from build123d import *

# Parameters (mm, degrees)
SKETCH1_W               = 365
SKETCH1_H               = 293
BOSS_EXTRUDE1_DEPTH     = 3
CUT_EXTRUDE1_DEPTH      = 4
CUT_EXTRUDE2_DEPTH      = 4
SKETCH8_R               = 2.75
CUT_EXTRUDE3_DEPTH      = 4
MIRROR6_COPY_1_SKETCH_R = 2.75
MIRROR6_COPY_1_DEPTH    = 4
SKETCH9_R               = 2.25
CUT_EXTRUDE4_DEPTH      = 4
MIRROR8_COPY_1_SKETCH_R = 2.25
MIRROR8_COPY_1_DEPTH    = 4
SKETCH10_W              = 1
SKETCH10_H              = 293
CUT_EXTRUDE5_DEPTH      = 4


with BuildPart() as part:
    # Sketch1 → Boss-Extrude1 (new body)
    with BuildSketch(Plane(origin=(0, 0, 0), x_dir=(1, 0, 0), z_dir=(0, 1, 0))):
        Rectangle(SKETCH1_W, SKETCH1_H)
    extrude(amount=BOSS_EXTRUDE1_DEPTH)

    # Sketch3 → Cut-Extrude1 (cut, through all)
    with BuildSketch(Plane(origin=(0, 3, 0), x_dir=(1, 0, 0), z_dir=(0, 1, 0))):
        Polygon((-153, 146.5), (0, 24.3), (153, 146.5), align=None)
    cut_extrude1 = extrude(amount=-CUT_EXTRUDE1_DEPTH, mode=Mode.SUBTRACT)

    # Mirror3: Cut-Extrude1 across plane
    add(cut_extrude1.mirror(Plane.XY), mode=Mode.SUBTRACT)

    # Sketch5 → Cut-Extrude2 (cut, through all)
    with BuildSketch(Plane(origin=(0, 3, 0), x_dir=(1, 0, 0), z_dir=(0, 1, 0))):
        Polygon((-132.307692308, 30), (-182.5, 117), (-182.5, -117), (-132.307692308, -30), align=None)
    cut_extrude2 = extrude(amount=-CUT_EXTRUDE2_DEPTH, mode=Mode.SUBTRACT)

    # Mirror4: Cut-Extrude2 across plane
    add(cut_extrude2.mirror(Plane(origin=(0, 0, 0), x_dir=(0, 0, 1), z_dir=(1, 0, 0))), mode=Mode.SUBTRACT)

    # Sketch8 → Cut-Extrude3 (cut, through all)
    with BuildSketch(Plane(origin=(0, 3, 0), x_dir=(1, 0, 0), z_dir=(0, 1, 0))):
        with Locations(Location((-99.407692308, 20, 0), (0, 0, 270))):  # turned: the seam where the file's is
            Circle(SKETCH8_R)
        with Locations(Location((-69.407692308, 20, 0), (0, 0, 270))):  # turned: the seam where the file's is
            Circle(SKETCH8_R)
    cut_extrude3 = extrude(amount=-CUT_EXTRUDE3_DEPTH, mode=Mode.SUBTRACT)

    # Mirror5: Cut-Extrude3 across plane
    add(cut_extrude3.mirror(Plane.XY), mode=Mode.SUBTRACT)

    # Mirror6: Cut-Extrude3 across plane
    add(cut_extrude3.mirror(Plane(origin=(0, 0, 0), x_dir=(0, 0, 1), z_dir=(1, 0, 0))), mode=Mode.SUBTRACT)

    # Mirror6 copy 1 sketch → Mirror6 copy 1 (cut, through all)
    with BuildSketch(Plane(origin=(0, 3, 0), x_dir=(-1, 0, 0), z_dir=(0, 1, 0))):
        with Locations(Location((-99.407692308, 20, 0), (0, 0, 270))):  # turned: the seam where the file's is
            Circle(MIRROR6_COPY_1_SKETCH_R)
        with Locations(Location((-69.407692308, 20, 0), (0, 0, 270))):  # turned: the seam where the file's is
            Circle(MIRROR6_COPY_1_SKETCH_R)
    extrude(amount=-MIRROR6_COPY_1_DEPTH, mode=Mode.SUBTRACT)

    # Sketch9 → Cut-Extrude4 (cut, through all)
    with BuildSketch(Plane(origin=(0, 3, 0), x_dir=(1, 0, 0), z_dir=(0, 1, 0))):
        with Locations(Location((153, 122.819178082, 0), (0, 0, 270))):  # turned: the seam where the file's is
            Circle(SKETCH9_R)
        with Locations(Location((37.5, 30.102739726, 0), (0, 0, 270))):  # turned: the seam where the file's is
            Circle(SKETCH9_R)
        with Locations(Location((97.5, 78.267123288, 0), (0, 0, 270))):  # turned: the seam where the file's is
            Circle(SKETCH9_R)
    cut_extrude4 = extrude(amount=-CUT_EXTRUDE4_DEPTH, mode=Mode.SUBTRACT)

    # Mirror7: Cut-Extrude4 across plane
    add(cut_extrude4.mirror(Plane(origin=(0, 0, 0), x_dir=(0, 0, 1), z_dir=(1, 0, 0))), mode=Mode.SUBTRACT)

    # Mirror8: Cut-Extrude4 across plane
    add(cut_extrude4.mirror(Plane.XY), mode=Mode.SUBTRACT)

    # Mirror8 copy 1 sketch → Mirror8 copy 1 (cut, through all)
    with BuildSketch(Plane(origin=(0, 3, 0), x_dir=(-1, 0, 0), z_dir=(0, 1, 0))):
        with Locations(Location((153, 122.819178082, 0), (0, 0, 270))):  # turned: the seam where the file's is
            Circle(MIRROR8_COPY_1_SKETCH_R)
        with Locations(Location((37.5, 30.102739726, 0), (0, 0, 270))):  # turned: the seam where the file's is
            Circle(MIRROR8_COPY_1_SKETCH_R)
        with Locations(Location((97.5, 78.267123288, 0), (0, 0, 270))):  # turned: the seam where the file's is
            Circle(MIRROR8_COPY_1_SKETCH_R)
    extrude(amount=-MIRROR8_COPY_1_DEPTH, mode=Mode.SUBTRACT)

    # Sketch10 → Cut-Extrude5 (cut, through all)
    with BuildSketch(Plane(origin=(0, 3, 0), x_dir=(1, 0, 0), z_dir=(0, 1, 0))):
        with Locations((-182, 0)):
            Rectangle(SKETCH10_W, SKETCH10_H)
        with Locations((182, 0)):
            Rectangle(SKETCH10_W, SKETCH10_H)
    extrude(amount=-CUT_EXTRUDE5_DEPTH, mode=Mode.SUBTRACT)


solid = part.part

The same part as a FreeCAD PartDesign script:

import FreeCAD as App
import Part
import Sketcher
from FreeCAD import Vector

doc = App.newDocument("Part")
body = doc.addObject("PartDesign::Body", "Body")

# Sketch on XZ plane
sketch1 = doc.addObject("Sketcher::SketchObject", "Sketch")
body.addObject(sketch1)
sketch1.AttachmentSupport = (doc.XZ_Plane, [""])
sketch1.MapMode = "FlatFace"
sketch1.addGeometry(Part.LineSegment(Vector(-182, -146, 0), Vector(-182, 146, 0)), False)
sketch1.addGeometry(Part.LineSegment(Vector(-182, 146, 0), Vector(182, 146, 0)), False)
sketch1.addGeometry(Part.LineSegment(Vector(182, 146, 0), Vector(182, -146, 0)), False)
sketch1.addGeometry(Part.LineSegment(Vector(182, -146, 0), Vector(-182, -146, 0)), False)
sketch1.addConstraint(Sketcher.Constraint("Coincident", 0, 2, 1, 1))
sketch1.addConstraint(Sketcher.Constraint("Coincident", 1, 2, 2, 1))
sketch1.addConstraint(Sketcher.Constraint("Coincident", 2, 2, 3, 1))
sketch1.addConstraint(Sketcher.Constraint("Coincident", 3, 2, 0, 1))
sketch1.addConstraint(Sketcher.Constraint("Vertical", 0))
sketch1.addConstraint(Sketcher.Constraint("Horizontal", 1))
sketch1.addConstraint(Sketcher.Constraint("Vertical", 2))
sketch1.addConstraint(Sketcher.Constraint("Horizontal", 3))
sketch1.addConstraint(Sketcher.Constraint("Symmetric", 0, 2, 2, 2, -1, 1))
sketch1.addConstraint(Sketcher.Constraint("DistanceX", 1, 1, 1, 2, 365.0))
sketch1.addConstraint(Sketcher.Constraint("DistanceY", 0, 1, 0, 2, 293.0))
pad1 = doc.addObject("PartDesign::Pad", "Pad")
body.addObject(pad1)
pad1.Profile = sketch1
pad1.Length = 3
pad1.Reversed = True

# Sketch on XZ plane
sketch2 = doc.addObject("Sketcher::SketchObject", "Sketch001")
body.addObject(sketch2)
sketch2.AttachmentSupport = (doc.XZ_Plane, [""])
sketch2.MapMode = "FlatFace"
sketch2.AttachmentOffset = App.Placement(Vector(0, 0, -3), App.Rotation())
sketch2.addGeometry(Part.LineSegment(Vector(-153, -146, 0), Vector(0, -24, 0)), False)
sketch2.addGeometry(Part.LineSegment(Vector(0, -24, 0), Vector(153, -146, 0)), False)
sketch2.addGeometry(Part.LineSegment(Vector(153, -146, 0), Vector(-153, -146, 0)), False)
sketch2.addConstraint(Sketcher.Constraint("Coincident", 0, 2, 1, 1))
sketch2.addConstraint(Sketcher.Constraint("Coincident", 1, 2, 2, 1))
sketch2.addConstraint(Sketcher.Constraint("Coincident", 2, 2, 0, 1))
sketch2.addConstraint(Sketcher.Constraint("Horizontal", 2))
sketch2.addConstraint(Sketcher.Constraint("PointOnObject", 0, 2, -2))
sketch2.addConstraint(Sketcher.Constraint("Equal", 0, 1))
sketch2.addConstraint(Sketcher.Constraint("DistanceX", 2, 2, 2, 1, 306.0))
sketch2.addConstraint(Sketcher.Constraint("DistanceY", 0, 2, -1, 1, 24.3))
sketch2.addConstraint(Sketcher.Constraint("DistanceY", 1, 2, -1, 1, 146.5))
pocket1 = doc.addObject("PartDesign::Pocket", "Pocket")
body.addObject(pocket1)
pocket1.Profile = sketch2
pocket1.Type = "ThroughAll"
pocket1.Reversed = True
doc.recompute()

mirrored = doc.addObject("PartDesign::Mirrored", "Mirrored")
body.addObject(mirrored)
mirrored.Originals = [pocket1]
mirrored.MirrorPlane = (doc.XY_Plane, [""])
body.Tip = mirrored

# Sketch on XZ plane
sketch3 = doc.addObject("Sketcher::SketchObject", "Sketch002")
body.addObject(sketch3)
sketch3.AttachmentSupport = (doc.XZ_Plane, [""])
sketch3.MapMode = "FlatFace"
sketch3.AttachmentOffset = App.Placement(Vector(0, 0, -3), App.Rotation())
sketch3.addGeometry(Part.LineSegment(Vector(-132, -30, 0), Vector(-182, -117, 0)), False)
sketch3.addGeometry(Part.LineSegment(Vector(-182, -117, 0), Vector(-182, 117, 0)), False)
sketch3.addGeometry(Part.LineSegment(Vector(-182, 117, 0), Vector(-132, 30, 0)), False)
sketch3.addGeometry(Part.LineSegment(Vector(-132, 30, 0), Vector(-132, -30, 0)), False)
sketch3.addConstraint(Sketcher.Constraint("Coincident", 0, 2, 1, 1))
sketch3.addConstraint(Sketcher.Constraint("Coincident", 1, 2, 2, 1))
sketch3.addConstraint(Sketcher.Constraint("Coincident", 2, 2, 3, 1))
sketch3.addConstraint(Sketcher.Constraint("Coincident", 3, 2, 0, 1))
sketch3.addConstraint(Sketcher.Constraint("Vertical", 1))
sketch3.addConstraint(Sketcher.Constraint("Vertical", 3))
sketch3.addConstraint(Sketcher.Constraint("Equal", 0, 2))
sketch3.addConstraint(Sketcher.Constraint("DistanceY", 1, 1, 1, 2, 234.0))
sketch3.addConstraint(Sketcher.Constraint("DistanceY", 3, 2, 3, 1, 60.0))
sketch3.addConstraint(Sketcher.Constraint("DistanceY", 0, 2, -1, 1, 117.0))
sketch3.addConstraint(Sketcher.Constraint("DistanceX", 0, 2, -1, 1, 182.5))
sketch3.addConstraint(Sketcher.Constraint("Distance", 0, 100.440369))
pocket2 = doc.addObject("PartDesign::Pocket", "Pocket001")
body.addObject(pocket2)
pocket2.Profile = sketch3
pocket2.Type = "ThroughAll"
pocket2.Reversed = True
doc.recompute()

mirrored2 = doc.addObject("PartDesign::Mirrored", "Mirrored001")
body.addObject(mirrored2)
mirrored2.Originals = [pocket2]
mirrored2.MirrorPlane = (doc.YZ_Plane, [""])
body.Tip = mirrored2

# Sketch on XZ plane
sketch4 = doc.addObject("Sketcher::SketchObject", "Sketch003")
body.addObject(sketch4)
sketch4.AttachmentSupport = (doc.XZ_Plane, [""])
sketch4.MapMode = "FlatFace"
sketch4.AttachmentOffset = App.Placement(Vector(0, 0, -3), App.Rotation())
sketch4.addGeometry(Part.Circle(Vector(-99.4, -20, 0), Vector(0, 0, 1), 2.8), False)
sketch4.addGeometry(Part.Circle(Vector(-69.4, -20, 0), Vector(0, 0, 1), 2.8), False)
sketch4.addConstraint(Sketcher.Constraint("Equal", 0, 1))
sketch4.addConstraint(Sketcher.Constraint("Horizontal", 0, 3, 1, 3))
sketch4.addConstraint(Sketcher.Constraint("Diameter", 0, 5.5))
sketch4.addConstraint(Sketcher.Constraint("DistanceY", 0, 3, -1, 1, 20.0))
sketch4.addConstraint(Sketcher.Constraint("DistanceX", 0, 3, 1, 3, 30.0))
sketch4.addConstraint(Sketcher.Constraint("DistanceX", 0, 3, -1, 1, 99.407692))
pocket3 = doc.addObject("PartDesign::Pocket", "Pocket002")
body.addObject(pocket3)
pocket3.Profile = sketch4
pocket3.Type = "ThroughAll"
pocket3.Reversed = True
doc.recompute()

mirrored3 = doc.addObject("PartDesign::Mirrored", "Mirrored002")
body.addObject(mirrored3)
mirrored3.Originals = [pocket3]
mirrored3.MirrorPlane = (doc.XY_Plane, [""])
body.Tip = mirrored3
doc.recompute()

mirrored4 = doc.addObject("PartDesign::Mirrored", "Mirrored003")
body.addObject(mirrored4)
mirrored4.Originals = [pocket3]
mirrored4.MirrorPlane = (doc.YZ_Plane, [""])
body.Tip = mirrored4

# Sketch on XZ plane
sketch5 = doc.addObject("Sketcher::SketchObject", "Sketch004")
body.addObject(sketch5)
sketch5.AttachmentSupport = (doc.XZ_Plane, [""])
sketch5.MapMode = "FlatFace"
sketch5.AttachmentOffset = App.Placement(Vector(0, 0, -3), App.Rotation())
sketch5.addGeometry(Part.Circle(Vector(99.4, 20, 0), Vector(0, 0, 1), 2.8), False)
sketch5.addGeometry(Part.Circle(Vector(69.4, 20, 0), Vector(0, 0, 1), 2.8), False)
sketch5.addConstraint(Sketcher.Constraint("Equal", 0, 1))
sketch5.addConstraint(Sketcher.Constraint("Horizontal", 0, 3, 1, 3))
sketch5.addConstraint(Sketcher.Constraint("Diameter", 0, 5.5))
sketch5.addConstraint(Sketcher.Constraint("DistanceY", -1, 1, 0, 3, 20.0))
sketch5.addConstraint(Sketcher.Constraint("DistanceX", 1, 3, 0, 3, 30.0))
sketch5.addConstraint(Sketcher.Constraint("DistanceX", -1, 1, 0, 3, 99.407692))
pocket4 = doc.addObject("PartDesign::Pocket", "Pocket003")
body.addObject(pocket4)
pocket4.Profile = sketch5
pocket4.Type = "ThroughAll"
pocket4.Reversed = True

# Sketch on XZ plane
sketch6 = doc.addObject("Sketcher::SketchObject", "Sketch005")
body.addObject(sketch6)
sketch6.AttachmentSupport = (doc.XZ_Plane, [""])
sketch6.MapMode = "FlatFace"
sketch6.AttachmentOffset = App.Placement(Vector(0, 0, -3), App.Rotation())
sketch6.addGeometry(Part.Circle(Vector(153, -122.8, 0), Vector(0, 0, 1), 2.2), False)
sketch6.addGeometry(Part.Circle(Vector(37.5, -30.1, 0), Vector(0, 0, 1), 2.2), False)
sketch6.addGeometry(Part.Circle(Vector(97.5, -78.3, 0), Vector(0, 0, 1), 2.2), False)
sketch6.addConstraint(Sketcher.Constraint("Equal", 0, 1))
sketch6.addConstraint(Sketcher.Constraint("Equal", 1, 2))
sketch6.addConstraint(Sketcher.Constraint("Diameter", 0, 4.5))
sketch6.addConstraint(Sketcher.Constraint("DistanceX", -1, 1, 0, 3, 153.0))
sketch6.addConstraint(Sketcher.Constraint("DistanceX", 1, 3, 2, 3, 60.0))
sketch6.addConstraint(Sketcher.Constraint("DistanceX", -1, 1, 1, 3, 37.5))
sketch6.addConstraint(Sketcher.Constraint("DistanceY", 0, 3, -1, 1, 122.819178))
sketch6.addConstraint(Sketcher.Constraint("DistanceY", 1, 3, -1, 1, 30.10274))
sketch6.addConstraint(Sketcher.Constraint("DistanceY", 2, 3, -1, 1, 78.267123))
pocket5 = doc.addObject("PartDesign::Pocket", "Pocket004")
body.addObject(pocket5)
pocket5.Profile = sketch6
pocket5.Type = "ThroughAll"
pocket5.Reversed = True
doc.recompute()

mirrored5 = doc.addObject("PartDesign::Mirrored", "Mirrored004")
body.addObject(mirrored5)
mirrored5.Originals = [pocket5]
mirrored5.MirrorPlane = (doc.YZ_Plane, [""])
body.Tip = mirrored5
doc.recompute()

mirrored6 = doc.addObject("PartDesign::Mirrored", "Mirrored005")
body.addObject(mirrored6)
mirrored6.Originals = [pocket5]
mirrored6.MirrorPlane = (doc.XY_Plane, [""])
body.Tip = mirrored6

# Sketch on XZ plane
sketch7 = doc.addObject("Sketcher::SketchObject", "Sketch006")
body.addObject(sketch7)
sketch7.AttachmentSupport = (doc.XZ_Plane, [""])
sketch7.MapMode = "FlatFace"
sketch7.AttachmentOffset = App.Placement(Vector(0, 0, -3), App.Rotation())
sketch7.addGeometry(Part.Circle(Vector(-153, 122.8, 0), Vector(0, 0, 1), 2.2), False)
sketch7.addGeometry(Part.Circle(Vector(-37.5, 30.1, 0), Vector(0, 0, 1), 2.2), False)
sketch7.addGeometry(Part.Circle(Vector(-97.5, 78.3, 0), Vector(0, 0, 1), 2.2), False)
sketch7.addConstraint(Sketcher.Constraint("Equal", 0, 1))
sketch7.addConstraint(Sketcher.Constraint("Equal", 1, 2))
sketch7.addConstraint(Sketcher.Constraint("Diameter", 0, 4.5))
sketch7.addConstraint(Sketcher.Constraint("DistanceX", 0, 3, -1, 1, 153.0))
sketch7.addConstraint(Sketcher.Constraint("DistanceX", 2, 3, 1, 3, 60.0))
sketch7.addConstraint(Sketcher.Constraint("DistanceX", 1, 3, -1, 1, 37.5))
sketch7.addConstraint(Sketcher.Constraint("DistanceY", -1, 1, 0, 3, 122.819178))
sketch7.addConstraint(Sketcher.Constraint("DistanceY", -1, 1, 1, 3, 30.10274))
sketch7.addConstraint(Sketcher.Constraint("DistanceY", -1, 1, 2, 3, 78.267123))
pocket6 = doc.addObject("PartDesign::Pocket", "Pocket005")
body.addObject(pocket6)
pocket6.Profile = sketch7
pocket6.Type = "ThroughAll"
pocket6.Reversed = True

# Sketch on XZ plane
sketch8 = doc.addObject("Sketcher::SketchObject", "Sketch007")
body.addObject(sketch8)
sketch8.AttachmentSupport = (doc.XZ_Plane, [""])
sketch8.MapMode = "FlatFace"
sketch8.AttachmentOffset = App.Placement(Vector(0, 0, -3), App.Rotation())
sketch8.addGeometry(Part.LineSegment(Vector(-182.5, -146.5, 0), Vector(-182.5, 146.5, 0)), False)
sketch8.addGeometry(Part.LineSegment(Vector(-182.5, 146.5, 0), Vector(-181.5, 146.5, 0)), False)
sketch8.addGeometry(Part.LineSegment(Vector(-181.5, 146.5, 0), Vector(-181.5, -146.5, 0)), False)
sketch8.addGeometry(Part.LineSegment(Vector(-181.5, -146.5, 0), Vector(-182.5, -146.5, 0)), False)
sketch8.addGeometry(Part.LineSegment(Vector(181.5, -146.5, 0), Vector(181.5, 146.5, 0)), False)
sketch8.addGeometry(Part.LineSegment(Vector(181.5, 146.5, 0), Vector(182.5, 146.5, 0)), False)
sketch8.addGeometry(Part.LineSegment(Vector(182.5, 146.5, 0), Vector(182.5, -146.5, 0)), False)
sketch8.addGeometry(Part.LineSegment(Vector(182.5, -146.5, 0), Vector(181.5, -146.5, 0)), False)
sketch8.addConstraint(Sketcher.Constraint("Coincident", 0, 2, 1, 1))
sketch8.addConstraint(Sketcher.Constraint("Coincident", 1, 2, 2, 1))
sketch8.addConstraint(Sketcher.Constraint("Coincident", 2, 2, 3, 1))
sketch8.addConstraint(Sketcher.Constraint("Coincident", 3, 2, 0, 1))
sketch8.addConstraint(Sketcher.Constraint("Coincident", 4, 2, 5, 1))
sketch8.addConstraint(Sketcher.Constraint("Coincident", 5, 2, 6, 1))
sketch8.addConstraint(Sketcher.Constraint("Coincident", 6, 2, 7, 1))
sketch8.addConstraint(Sketcher.Constraint("Coincident", 7, 2, 4, 1))
sketch8.addConstraint(Sketcher.Constraint("Vertical", 0))
sketch8.addConstraint(Sketcher.Constraint("Horizontal", 1))
sketch8.addConstraint(Sketcher.Constraint("Vertical", 2))
sketch8.addConstraint(Sketcher.Constraint("Horizontal", 3))
sketch8.addConstraint(Sketcher.Constraint("Vertical", 4))
sketch8.addConstraint(Sketcher.Constraint("Horizontal", 5))
sketch8.addConstraint(Sketcher.Constraint("Vertical", 6))
sketch8.addConstraint(Sketcher.Constraint("Horizontal", 7))
sketch8.addConstraint(Sketcher.Constraint("Symmetric", 2, 2, 4, 2, -1, 1))
sketch8.addConstraint(Sketcher.Constraint("Symmetric", 0, 2, 6, 2, -1, 1))
sketch8.addConstraint(Sketcher.Constraint("Horizontal", 1, 2, 4, 2))
sketch8.addConstraint(Sketcher.Constraint("DistanceX", 1, 1, 1, 2, 1.0))
sketch8.addConstraint(Sketcher.Constraint("DistanceY", 0, 1, 0, 2, 293.0))
sketch8.addConstraint(Sketcher.Constraint("DistanceX", 1, 2, 4, 2, 363.0))
pocket7 = doc.addObject("PartDesign::Pocket", "Pocket006")
body.addObject(pocket7)
pocket7.Profile = sketch8
pocket7.Type = "ThroughAll"
pocket7.Reversed = True

doc.recompute()
